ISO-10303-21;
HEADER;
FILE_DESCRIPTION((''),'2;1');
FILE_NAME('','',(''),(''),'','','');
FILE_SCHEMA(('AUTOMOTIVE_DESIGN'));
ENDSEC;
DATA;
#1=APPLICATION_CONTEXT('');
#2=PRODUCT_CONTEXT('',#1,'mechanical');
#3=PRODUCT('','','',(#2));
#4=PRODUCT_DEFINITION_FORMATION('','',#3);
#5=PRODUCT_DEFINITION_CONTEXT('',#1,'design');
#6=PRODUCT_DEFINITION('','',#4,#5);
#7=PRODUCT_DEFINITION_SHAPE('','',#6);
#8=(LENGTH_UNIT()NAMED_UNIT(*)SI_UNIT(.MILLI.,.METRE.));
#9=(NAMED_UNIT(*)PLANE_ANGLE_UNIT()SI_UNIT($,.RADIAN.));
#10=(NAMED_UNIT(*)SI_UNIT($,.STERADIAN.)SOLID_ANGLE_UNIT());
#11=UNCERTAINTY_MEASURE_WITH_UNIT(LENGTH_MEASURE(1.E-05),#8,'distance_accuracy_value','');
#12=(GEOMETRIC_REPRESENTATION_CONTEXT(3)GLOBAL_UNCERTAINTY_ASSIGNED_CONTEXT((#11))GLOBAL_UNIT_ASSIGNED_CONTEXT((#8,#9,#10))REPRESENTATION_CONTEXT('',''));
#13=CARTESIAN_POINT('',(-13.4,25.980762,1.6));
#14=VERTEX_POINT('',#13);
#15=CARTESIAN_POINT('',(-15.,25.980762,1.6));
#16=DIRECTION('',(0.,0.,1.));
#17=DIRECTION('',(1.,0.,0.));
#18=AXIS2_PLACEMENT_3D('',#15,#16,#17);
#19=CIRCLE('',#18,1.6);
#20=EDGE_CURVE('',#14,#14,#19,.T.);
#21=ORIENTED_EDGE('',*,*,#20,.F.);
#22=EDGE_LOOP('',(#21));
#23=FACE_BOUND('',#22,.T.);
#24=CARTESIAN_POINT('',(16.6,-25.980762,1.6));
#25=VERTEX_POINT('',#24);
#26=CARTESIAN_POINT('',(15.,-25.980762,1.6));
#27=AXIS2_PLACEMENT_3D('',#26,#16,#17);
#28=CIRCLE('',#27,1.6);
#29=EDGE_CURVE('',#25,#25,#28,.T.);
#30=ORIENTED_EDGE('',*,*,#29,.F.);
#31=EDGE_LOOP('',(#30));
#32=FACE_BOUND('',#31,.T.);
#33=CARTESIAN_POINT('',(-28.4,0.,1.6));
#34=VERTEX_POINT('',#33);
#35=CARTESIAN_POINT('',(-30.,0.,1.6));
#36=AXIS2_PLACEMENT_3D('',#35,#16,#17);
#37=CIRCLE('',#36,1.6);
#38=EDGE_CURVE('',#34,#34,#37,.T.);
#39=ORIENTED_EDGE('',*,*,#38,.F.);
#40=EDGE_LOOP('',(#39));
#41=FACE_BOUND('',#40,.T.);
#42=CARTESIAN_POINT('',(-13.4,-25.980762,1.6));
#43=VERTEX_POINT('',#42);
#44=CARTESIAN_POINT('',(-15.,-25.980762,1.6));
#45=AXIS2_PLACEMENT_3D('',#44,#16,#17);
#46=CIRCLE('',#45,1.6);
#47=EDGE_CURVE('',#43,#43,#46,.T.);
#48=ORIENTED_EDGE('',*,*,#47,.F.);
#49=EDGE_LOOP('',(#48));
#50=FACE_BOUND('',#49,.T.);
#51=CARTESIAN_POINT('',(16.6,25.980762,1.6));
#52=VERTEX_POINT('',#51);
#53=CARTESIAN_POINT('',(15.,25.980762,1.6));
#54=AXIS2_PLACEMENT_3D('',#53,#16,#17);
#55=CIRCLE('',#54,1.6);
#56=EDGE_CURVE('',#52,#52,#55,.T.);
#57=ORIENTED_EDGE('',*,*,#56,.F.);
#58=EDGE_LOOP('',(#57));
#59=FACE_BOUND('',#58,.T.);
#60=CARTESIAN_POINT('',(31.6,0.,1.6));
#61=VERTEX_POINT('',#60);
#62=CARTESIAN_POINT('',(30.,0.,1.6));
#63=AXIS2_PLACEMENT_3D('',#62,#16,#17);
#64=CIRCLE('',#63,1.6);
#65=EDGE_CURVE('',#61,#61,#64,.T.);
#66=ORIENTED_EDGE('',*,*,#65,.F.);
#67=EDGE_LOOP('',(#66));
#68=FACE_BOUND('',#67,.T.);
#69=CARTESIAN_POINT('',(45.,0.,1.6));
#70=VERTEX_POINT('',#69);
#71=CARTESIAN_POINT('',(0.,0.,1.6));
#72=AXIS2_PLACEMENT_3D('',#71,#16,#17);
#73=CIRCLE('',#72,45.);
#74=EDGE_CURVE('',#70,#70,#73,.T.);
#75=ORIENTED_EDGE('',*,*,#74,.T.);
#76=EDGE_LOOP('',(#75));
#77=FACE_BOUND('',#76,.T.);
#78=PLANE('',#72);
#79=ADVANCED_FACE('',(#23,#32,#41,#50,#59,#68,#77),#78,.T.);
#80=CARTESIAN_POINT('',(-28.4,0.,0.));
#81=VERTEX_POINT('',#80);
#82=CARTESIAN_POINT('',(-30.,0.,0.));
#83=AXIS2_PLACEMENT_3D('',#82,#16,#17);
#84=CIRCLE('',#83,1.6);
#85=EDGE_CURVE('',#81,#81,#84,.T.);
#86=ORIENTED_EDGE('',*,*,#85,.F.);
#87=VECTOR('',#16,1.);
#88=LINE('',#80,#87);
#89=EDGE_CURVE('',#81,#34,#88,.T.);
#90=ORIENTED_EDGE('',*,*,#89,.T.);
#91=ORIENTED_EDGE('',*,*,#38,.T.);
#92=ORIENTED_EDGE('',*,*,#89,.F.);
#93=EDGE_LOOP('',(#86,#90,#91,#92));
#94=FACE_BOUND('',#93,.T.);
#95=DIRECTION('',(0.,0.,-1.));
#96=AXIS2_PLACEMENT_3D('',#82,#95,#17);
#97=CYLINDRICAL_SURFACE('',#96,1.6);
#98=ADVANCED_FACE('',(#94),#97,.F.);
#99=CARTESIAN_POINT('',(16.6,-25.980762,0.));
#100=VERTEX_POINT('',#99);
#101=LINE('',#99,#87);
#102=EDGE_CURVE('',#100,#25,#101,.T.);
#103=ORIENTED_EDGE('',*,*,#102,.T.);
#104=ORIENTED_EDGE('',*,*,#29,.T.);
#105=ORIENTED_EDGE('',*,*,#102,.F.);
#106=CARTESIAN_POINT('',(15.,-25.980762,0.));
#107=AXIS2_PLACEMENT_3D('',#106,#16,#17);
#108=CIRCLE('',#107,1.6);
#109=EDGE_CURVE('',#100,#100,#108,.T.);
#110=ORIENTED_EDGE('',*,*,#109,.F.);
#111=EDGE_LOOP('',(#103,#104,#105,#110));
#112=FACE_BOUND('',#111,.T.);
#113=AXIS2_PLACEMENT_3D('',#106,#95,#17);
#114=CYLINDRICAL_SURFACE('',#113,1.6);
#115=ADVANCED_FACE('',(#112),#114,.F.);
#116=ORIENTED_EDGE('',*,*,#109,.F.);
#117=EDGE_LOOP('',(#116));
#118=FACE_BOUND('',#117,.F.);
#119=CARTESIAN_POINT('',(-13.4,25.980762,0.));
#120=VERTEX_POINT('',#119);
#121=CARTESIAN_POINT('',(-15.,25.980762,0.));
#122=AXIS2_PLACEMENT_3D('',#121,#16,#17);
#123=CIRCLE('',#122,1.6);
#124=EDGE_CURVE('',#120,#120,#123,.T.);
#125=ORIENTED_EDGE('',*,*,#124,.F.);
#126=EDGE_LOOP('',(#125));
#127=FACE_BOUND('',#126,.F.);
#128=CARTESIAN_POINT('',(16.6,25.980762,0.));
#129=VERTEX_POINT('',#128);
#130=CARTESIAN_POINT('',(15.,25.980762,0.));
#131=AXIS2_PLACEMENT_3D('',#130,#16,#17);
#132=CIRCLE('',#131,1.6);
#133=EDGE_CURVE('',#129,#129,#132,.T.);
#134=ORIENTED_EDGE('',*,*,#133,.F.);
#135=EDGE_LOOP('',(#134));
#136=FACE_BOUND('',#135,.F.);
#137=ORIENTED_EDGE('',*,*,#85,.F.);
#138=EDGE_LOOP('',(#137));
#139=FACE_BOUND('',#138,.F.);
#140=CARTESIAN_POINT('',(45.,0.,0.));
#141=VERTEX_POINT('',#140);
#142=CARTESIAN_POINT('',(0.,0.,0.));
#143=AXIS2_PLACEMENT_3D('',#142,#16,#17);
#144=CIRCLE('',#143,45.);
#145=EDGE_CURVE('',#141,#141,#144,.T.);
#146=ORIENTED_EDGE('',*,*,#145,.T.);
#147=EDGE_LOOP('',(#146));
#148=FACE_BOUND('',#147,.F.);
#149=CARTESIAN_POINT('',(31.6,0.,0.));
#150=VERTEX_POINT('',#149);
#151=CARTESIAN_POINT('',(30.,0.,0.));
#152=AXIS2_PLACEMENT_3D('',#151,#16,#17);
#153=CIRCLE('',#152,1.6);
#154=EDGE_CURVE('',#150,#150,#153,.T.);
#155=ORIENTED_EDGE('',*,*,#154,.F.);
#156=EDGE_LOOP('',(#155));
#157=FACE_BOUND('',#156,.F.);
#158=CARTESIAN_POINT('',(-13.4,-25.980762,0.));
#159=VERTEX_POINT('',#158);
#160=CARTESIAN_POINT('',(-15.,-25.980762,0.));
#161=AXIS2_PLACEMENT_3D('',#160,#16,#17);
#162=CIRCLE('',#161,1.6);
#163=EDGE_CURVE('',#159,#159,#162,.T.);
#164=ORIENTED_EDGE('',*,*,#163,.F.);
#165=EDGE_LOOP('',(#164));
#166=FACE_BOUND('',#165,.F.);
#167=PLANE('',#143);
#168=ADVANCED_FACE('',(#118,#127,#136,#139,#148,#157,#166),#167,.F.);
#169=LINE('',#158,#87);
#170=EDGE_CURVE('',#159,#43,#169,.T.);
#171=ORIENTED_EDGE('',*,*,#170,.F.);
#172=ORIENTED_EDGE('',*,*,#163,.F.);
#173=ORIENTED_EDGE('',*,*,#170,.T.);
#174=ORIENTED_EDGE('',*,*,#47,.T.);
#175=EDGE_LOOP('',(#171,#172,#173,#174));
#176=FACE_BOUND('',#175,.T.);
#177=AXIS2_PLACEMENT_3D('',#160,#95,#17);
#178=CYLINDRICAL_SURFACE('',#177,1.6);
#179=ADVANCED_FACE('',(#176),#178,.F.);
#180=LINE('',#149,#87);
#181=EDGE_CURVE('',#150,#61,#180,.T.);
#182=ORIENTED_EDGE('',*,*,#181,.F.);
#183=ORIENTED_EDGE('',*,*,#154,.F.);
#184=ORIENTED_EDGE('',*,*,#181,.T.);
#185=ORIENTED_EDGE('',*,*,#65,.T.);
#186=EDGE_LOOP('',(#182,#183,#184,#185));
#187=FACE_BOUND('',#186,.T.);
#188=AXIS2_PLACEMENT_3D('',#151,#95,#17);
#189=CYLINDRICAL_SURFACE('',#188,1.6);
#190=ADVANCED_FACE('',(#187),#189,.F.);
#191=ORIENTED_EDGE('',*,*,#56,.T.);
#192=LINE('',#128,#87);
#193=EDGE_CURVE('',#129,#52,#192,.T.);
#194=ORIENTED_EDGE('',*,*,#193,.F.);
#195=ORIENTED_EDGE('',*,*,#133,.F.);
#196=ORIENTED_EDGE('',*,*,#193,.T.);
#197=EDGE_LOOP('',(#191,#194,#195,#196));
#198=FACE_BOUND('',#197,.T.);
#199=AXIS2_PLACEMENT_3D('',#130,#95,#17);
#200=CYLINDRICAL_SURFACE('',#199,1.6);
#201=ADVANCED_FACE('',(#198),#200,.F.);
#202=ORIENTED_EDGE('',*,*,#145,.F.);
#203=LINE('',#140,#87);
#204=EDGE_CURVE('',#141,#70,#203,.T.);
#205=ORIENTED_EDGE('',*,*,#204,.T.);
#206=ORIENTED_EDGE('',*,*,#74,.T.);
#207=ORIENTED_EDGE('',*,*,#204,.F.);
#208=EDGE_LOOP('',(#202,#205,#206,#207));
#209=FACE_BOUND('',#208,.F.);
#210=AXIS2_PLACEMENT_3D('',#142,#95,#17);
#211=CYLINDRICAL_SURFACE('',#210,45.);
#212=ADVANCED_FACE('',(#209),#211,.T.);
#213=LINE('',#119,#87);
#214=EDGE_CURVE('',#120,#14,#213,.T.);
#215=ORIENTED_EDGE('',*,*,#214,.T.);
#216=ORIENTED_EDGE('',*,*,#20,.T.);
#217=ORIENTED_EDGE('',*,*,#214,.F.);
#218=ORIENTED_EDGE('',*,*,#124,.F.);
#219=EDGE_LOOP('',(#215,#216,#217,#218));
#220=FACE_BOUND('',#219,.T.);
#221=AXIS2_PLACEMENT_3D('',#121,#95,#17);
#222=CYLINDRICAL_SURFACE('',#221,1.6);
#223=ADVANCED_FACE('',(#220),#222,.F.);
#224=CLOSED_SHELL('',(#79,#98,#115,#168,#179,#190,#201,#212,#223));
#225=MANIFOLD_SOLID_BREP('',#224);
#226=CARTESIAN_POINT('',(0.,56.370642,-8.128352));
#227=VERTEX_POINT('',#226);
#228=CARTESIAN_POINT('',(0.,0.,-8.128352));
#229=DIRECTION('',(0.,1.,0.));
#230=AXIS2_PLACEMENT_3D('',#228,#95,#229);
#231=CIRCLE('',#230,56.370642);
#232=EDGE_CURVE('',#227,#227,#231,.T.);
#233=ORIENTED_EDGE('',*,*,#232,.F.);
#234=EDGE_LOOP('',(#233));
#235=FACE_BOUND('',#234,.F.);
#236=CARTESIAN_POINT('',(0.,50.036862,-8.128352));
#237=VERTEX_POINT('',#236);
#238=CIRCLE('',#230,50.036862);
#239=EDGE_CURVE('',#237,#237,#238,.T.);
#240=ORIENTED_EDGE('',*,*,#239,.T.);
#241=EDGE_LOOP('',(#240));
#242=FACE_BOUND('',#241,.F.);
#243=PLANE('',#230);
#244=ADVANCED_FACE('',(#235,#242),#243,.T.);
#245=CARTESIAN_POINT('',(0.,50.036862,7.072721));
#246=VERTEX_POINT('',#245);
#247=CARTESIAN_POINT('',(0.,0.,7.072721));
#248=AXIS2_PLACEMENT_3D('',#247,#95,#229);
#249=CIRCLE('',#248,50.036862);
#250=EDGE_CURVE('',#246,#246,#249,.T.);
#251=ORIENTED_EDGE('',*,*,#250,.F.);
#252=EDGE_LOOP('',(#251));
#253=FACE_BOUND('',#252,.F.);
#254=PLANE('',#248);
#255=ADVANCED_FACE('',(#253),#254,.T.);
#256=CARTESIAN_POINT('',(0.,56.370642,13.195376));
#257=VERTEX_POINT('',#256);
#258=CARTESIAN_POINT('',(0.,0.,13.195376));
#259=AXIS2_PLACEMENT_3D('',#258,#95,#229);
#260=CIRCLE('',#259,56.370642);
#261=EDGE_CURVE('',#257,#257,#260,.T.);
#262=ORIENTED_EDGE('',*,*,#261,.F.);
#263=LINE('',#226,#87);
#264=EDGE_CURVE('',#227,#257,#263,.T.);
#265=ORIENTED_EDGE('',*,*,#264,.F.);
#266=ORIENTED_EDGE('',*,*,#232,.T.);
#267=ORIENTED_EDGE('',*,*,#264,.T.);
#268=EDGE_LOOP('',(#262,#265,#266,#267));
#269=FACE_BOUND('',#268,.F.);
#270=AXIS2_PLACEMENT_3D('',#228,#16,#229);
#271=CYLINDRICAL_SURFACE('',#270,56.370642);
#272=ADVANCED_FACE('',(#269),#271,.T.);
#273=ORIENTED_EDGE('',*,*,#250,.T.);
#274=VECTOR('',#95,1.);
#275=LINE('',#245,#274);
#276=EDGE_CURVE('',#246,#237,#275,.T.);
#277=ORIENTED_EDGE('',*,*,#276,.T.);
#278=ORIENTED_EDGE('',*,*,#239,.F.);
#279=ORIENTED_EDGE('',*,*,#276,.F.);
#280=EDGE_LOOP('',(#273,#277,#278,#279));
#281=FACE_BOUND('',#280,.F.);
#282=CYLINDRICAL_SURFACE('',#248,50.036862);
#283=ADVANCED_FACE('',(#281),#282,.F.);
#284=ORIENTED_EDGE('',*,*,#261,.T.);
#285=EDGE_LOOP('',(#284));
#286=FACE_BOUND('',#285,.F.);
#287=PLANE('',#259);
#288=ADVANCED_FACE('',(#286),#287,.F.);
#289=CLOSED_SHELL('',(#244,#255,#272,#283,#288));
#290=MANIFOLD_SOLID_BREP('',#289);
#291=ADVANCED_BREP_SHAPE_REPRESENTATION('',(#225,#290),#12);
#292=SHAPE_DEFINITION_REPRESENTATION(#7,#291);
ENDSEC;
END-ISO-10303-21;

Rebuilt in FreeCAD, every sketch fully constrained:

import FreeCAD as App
import Part
import Sketcher
from FreeCAD import Vector
Q = App.Units.Quantity

doc = App.newDocument("Part")
body = doc.addObject("PartDesign::Body", "Body")

# Sketch on XY plane
sketch1 = body.newObject("Sketcher::SketchObject", "Sketch")
sketch1.AttachmentSupport = (doc.getObject("XY_Plane"), [""])
sketch1.MapMode = "FlatFace"
sketch1.addGeometry(Part.Circle(Vector(0, 0, 0), Vector(0, 0, 1), 45), False)
sketch1.addGeometry(Part.Circle(Vector(-15, -26, 0), Vector(0, 0, 1), 1.6), False)
sketch1.addGeometry(Part.Circle(Vector(-30, 0, 0), Vector(0, 0, 1), 1.6), False)
sketch1.addGeometry(Part.Circle(Vector(15, -26, 0), Vector(0, 0, 1), 1.6), False)
sketch1.addGeometry(Part.Circle(Vector(30, 0, 0), Vector(0, 0, 1), 1.6), False)
sketch1.addGeometry(Part.Circle(Vector(-15, 26, 0), Vector(0, 0, 1), 1.6), False)
sketch1.addGeometry(Part.Circle(Vector(15, 26, 0), Vector(0, 0, 1), 1.6), False)
sketch1.addConstraint(Sketcher.Constraint("Coincident", 0, 3, -1, 1))
sketch1.addConstraint(Sketcher.Constraint("Equal", 1, 2))
sketch1.addConstraint(Sketcher.Constraint("Equal", 2, 3))
sketch1.addConstraint(Sketcher.Constraint("Equal", 3, 4))
sketch1.addConstraint(Sketcher.Constraint("Equal", 4, 5))
sketch1.addConstraint(Sketcher.Constraint("Equal", 5, 6))
sketch1.addConstraint(Sketcher.Constraint("Symmetric", 2, 3, 4, 3, -1, 1))
sketch1.addConstraint(Sketcher.Constraint("Symmetric", 3, 3, 5, 3, -1, 1))
sketch1.addConstraint(Sketcher.Constraint("Symmetric", 1, 3, 6, 3, -1, 1))
sketch1.addConstraint(Sketcher.Constraint("Symmetric", 1, 3, 3, 3, -2))
sketch1.addConstraint(Sketcher.Constraint("PointOnObject", 2, 3, -1))
sketch1.addConstraint(Sketcher.Constraint("Diameter", 0, Q("90 mm")))
sketch1.addConstraint(Sketcher.Constraint("Diameter", 1, Q("3.2 mm")))
sketch1.addConstraint(Sketcher.Constraint("DistanceX", 1, 3, -1, 1, Q("15 mm")))
sketch1.addConstraint(Sketcher.Constraint("DistanceX", 2, 3, -1, 1, Q("30 mm")))
sketch1.addConstraint(Sketcher.Constraint("DistanceY", 1, 3, -1, 1, Q("25.980762 mm")))
pad1 = body.newObject("PartDesign::Pad", "Pad")
pad1.Profile = sketch1
pad1.Length = 1.6
body2 = doc.addObject("PartDesign::Body", "Body001")

# Sketch on YZ plane
sketch2 = body2.newObject("Sketcher::SketchObject", "Sketch001")
sketch2.AttachmentSupport = (doc.getObject("YZ_Plane001"), [""])
sketch2.MapMode = "FlatFace"
sketch2.addGeometry(Part.LineSegment(Vector(0, 13, 0), Vector(0, 7, 0)), False)
sketch2.addGeometry(Part.LineSegment(Vector(0, 7, 0), Vector(50, 7, 0)), False)
sketch2.addGeometry(Part.LineSegment(Vector(50, 7, 0), Vector(50, -8, 0)), False)
sketch2.addGeometry(Part.LineSegment(Vector(50, -8, 0), Vector(56, -8, 0)), False)
sketch2.addGeometry(Part.LineSegment(Vector(56, -8, 0), Vector(56, 13, 0)), False)
sketch2.addGeometry(Part.LineSegment(Vector(56, 13, 0), Vector(0, 13, 0)), False)
sketch2.addConstraint(Sketcher.Constraint("Coincident", 0, 2, 1, 1))
sketch2.addConstraint(Sketcher.Constraint("Coincident", 1, 2, 2, 1))
sketch2.addConstraint(Sketcher.Constraint("Coincident", 2, 2, 3, 1))
sketch2.addConstraint(Sketcher.Constraint("Coincident", 3, 2, 4, 1))
sketch2.addConstraint(Sketcher.Constraint("Coincident", 4, 2, 5, 1))
sketch2.addConstraint(Sketcher.Constraint("Coincident", 5, 2, 0, 1))
sketch2.addConstraint(Sketcher.Constraint("Vertical", 0))
sketch2.addConstraint(Sketcher.Constraint("Horizontal", 1))
sketch2.addConstraint(Sketcher.Constraint("Vertical", 2))
sketch2.addConstraint(Sketcher.Constraint("Horizontal", 3))
sketch2.addConstraint(Sketcher.Constraint("Vertical", 4))
sketch2.addConstraint(Sketcher.Constraint("Horizontal", 5))
sketch2.addConstraint(Sketcher.Constraint("PointOnObject", 0, 2, -2))
sketch2.addConstraint(Sketcher.Constraint("DistanceX", 3, 1, 3, 2, Q("6.33378 mm")))
sketch2.addConstraint(Sketcher.Constraint("DistanceX", 5, 2, 5, 1, Q("56.370642 mm")))
sketch2.addConstraint(Sketcher.Constraint("DistanceY", 0, 2, 0, 1, Q("6.122655 mm")))
sketch2.addConstraint(Sketcher.Constraint("DistanceY", 2, 2, 2, 1, Q("15.201073 mm")))
sketch2.addConstraint(Sketcher.Constraint("DistanceY", -1, 1, 0, 2, Q("7.072721 mm")))
revolution = body2.newObject("PartDesign::Revolution", "Revolution")
revolution.Profile = sketch2
revolution.ReferenceAxis = (sketch2, ["V_Axis"])
revolution.Angle = 360

doc.recompute()
